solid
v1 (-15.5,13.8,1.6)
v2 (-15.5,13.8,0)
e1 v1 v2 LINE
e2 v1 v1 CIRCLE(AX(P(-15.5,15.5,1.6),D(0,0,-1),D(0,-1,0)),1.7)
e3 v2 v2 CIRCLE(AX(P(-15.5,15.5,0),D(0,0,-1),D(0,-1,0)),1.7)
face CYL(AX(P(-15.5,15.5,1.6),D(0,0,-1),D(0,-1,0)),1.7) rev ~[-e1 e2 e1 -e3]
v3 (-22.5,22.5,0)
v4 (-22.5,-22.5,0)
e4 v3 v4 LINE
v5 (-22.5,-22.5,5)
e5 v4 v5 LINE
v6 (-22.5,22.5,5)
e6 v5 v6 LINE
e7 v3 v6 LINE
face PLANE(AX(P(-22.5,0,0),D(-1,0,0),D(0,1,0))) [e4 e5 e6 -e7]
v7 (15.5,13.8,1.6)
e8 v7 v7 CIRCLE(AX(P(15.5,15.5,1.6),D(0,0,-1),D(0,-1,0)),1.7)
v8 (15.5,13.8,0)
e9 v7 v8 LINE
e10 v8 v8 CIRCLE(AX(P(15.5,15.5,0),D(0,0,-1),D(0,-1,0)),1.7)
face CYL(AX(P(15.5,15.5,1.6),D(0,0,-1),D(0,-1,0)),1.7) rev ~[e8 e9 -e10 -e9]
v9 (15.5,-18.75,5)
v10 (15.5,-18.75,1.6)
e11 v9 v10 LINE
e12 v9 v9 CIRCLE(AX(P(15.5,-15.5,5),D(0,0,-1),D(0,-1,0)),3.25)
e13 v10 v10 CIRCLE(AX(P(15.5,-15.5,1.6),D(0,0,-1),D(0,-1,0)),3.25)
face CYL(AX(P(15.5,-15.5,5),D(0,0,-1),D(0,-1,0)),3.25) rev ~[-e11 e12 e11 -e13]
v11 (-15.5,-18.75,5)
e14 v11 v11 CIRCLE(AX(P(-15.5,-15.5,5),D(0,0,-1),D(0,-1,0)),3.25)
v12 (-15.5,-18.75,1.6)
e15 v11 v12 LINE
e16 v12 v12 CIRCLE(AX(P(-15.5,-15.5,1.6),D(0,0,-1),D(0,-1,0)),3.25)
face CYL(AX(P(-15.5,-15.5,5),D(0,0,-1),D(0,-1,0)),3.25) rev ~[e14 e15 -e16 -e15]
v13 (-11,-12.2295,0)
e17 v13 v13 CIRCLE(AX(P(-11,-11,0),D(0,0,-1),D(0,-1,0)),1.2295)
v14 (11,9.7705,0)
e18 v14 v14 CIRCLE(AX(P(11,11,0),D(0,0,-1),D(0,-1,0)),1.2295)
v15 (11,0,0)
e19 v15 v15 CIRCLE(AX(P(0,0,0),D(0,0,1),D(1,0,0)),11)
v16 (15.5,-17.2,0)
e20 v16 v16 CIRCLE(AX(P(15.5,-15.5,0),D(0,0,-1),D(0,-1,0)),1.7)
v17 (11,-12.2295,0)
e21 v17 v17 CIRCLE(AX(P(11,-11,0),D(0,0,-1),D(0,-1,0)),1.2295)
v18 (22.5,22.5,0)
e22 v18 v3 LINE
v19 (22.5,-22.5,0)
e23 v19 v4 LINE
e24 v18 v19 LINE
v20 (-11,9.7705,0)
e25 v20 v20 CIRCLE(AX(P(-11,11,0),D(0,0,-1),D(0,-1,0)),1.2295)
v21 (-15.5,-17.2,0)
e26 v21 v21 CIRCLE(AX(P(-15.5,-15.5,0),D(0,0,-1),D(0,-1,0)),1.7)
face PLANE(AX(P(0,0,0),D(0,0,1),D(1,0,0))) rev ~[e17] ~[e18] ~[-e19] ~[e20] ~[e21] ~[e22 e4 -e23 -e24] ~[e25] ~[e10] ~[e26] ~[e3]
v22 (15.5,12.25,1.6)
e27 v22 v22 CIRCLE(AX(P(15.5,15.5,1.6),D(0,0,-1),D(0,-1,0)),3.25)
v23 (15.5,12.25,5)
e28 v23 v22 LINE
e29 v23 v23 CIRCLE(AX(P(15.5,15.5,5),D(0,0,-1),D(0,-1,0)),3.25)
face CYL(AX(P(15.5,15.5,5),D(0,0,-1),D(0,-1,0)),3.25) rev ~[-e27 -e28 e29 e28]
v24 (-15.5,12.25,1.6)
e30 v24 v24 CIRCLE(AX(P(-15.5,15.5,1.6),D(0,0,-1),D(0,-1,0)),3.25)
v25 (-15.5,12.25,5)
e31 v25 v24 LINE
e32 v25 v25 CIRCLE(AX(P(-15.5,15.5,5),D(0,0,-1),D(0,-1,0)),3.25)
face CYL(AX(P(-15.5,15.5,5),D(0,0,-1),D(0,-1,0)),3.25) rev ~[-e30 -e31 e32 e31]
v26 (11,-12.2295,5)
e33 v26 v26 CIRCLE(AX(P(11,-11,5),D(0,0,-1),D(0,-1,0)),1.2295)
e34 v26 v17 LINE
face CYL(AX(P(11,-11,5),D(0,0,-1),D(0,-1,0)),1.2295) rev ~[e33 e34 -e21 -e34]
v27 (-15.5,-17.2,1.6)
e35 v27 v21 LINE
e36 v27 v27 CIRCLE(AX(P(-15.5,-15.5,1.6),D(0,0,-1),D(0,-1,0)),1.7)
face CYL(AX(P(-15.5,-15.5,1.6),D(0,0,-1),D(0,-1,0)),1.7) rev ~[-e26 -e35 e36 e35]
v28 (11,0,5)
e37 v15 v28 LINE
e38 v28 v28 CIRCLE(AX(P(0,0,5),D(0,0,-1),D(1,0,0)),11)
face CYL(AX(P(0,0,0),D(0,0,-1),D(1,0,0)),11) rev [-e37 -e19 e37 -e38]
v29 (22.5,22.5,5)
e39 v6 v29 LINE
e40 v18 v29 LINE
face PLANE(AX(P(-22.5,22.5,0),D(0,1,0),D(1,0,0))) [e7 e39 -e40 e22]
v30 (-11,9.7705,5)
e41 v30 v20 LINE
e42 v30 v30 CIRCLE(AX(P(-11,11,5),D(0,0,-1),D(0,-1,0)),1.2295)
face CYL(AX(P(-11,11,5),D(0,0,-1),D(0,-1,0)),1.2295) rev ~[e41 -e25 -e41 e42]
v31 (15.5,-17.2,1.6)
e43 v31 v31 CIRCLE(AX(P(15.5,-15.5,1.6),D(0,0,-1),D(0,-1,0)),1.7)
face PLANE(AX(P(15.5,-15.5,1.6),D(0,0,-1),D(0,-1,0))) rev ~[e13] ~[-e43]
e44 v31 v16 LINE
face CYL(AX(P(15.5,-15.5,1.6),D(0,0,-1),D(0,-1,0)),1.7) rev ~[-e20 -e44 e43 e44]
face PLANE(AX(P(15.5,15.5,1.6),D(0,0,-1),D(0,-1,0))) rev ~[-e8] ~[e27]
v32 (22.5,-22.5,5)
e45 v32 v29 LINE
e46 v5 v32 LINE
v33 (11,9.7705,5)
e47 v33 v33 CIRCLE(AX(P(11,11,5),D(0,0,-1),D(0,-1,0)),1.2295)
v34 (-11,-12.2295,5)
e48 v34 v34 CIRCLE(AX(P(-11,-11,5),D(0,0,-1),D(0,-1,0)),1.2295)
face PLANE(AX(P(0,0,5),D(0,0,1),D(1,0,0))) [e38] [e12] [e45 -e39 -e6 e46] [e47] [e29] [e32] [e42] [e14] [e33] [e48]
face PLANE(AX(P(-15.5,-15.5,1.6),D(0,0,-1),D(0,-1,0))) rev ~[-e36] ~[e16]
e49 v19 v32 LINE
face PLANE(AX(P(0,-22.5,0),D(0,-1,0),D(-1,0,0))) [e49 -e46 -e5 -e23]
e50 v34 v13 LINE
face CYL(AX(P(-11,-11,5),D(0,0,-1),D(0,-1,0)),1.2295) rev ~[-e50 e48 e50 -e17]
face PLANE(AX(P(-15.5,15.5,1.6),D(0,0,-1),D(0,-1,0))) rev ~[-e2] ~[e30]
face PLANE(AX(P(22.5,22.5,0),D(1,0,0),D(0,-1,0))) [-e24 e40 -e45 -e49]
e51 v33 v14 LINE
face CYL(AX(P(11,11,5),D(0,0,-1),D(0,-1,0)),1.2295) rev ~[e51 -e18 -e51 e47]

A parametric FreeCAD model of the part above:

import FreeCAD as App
import Part
import Sketcher
from FreeCAD import Vector
Q = App.Units.Quantity

doc = App.newDocument("Part")
body = doc.addObject("PartDesign::Body", "Body")

sketch1 = body.newObject("Sketcher::SketchObject", "Sketch")
sketch1.AttachmentSupport = (doc.getObject("XY_Plane"), [""])
sketch1.MapMode = "FlatFace"
sketch1.addGeometry(Part.LineSegment(Vector(-22, 22, 0), Vector(-22, -22, 0)), False)
sketch1.addGeometry(Part.LineSegment(Vector(-22, -22, 0), Vector(22, -22, 0)), False)
sketch1.addGeometry(Part.LineSegment(Vector(22, -22, 0), Vector(22, 22, 0)), False)
sketch1.addGeometry(Part.LineSegment(Vector(22, 22, 0), Vector(-22, 22, 0)), False)
sketch1.addGeometry(Part.Circle(Vector(0, 0, 0), Vector(0, 0, 1), 11), False)
sketch1.addConstraint(Sketcher.Constraint("Coincident", 0, 2, 1, 1))
sketch1.addConstraint(Sketcher.Constraint("Coincident", 1, 2, 2, 1))
sketch1.addConstraint(Sketcher.Constraint("Coincident", 2, 2, 3, 1))
sketch1.addConstraint(Sketcher.Constraint("Coincident", 3, 2, 0, 1))
sketch1.addConstraint(Sketcher.Constraint("Vertical", 0))
sketch1.addConstraint(Sketcher.Constraint("Horizontal", 1))
sketch1.addConstraint(Sketcher.Constraint("Vertical", 2))
sketch1.addConstraint(Sketcher.Constraint("Horizontal", 3))
sketch1.addConstraint(Sketcher.Constraint("Coincident", 4, 3, -1, 1))
sketch1.addConstraint(Sketcher.Constraint("Symmetric", 0, 2, 2, 2, -1, 1))
sketch1.addConstraint(Sketcher.Constraint("Equal", 3, 0))
sketch1.addConstraint(Sketcher.Constraint("Diameter", 4, Q("22 mm")))
sketch1.addConstraint(Sketcher.Constraint("DistanceX", 1, 1, 1, 2, Q("45 mm")))
pad1 = body.newObject("PartDesign::Pad", "Pad")
pad1.Profile = sketch1
pad1.Length = 5

sketch2 = body.newObject("Sketcher::SketchObject", "Sketch001")
sketch2.AttachmentSupport = (doc.getObject("XY_Plane"), [""])
sketch2.MapMode = "FlatFace"
sketch2.AttachmentOffset = App.Placement(Vector(0, 0, 5), App.Rotation())
sketch2.addGeometry(Part.Circle(Vector(-11, 11, 0), Vector(0, 0, 1), 1.2), False)
sketch2.addGeometry(Part.Circle(Vector(11, 11, 0), Vector(0, 0, 1), 1.2), False)
sketch2.addGeometry(Part.Circle(Vector(11, -11, 0), Vector(0, 0, 1), 1.2), False)
sketch2.addGeometry(Part.Circle(Vector(-11, -11, 0), Vector(0, 0, 1), 1.2), False)
sketch2.addConstraint(Sketcher.Constraint("Equal", 0, 1))
sketch2.addConstraint(Sketcher.Constraint("Equal", 1, 2))
sketch2.addConstraint(Sketcher.Constraint("Equal", 2, 3))
sketch2.addConstraint(Sketcher.Constraint("Symmetric", 0, 3, 2, 3, -1, 1))
sketch2.addConstraint(Sketcher.Constraint("Symmetric", 1, 3, 3, 3, -1, 1))
sketch2.addConstraint(Sketcher.Constraint("Symmetric", 0, 3, 1, 3, -2))
sketch2.addConstraint(Sketcher.Constraint("Diameter", 0, Q("2.459 mm")))
sketch2.addConstraint(Sketcher.Constraint("DistanceX", 0, 3, -1, 1, Q("11 mm")))
sketch2.addConstraint(Sketcher.Constraint("DistanceY", -1, 1, 0, 3, Q("11 mm")))
doc.recompute()
hole = body.newObject("PartDesign::Hole", "Hole")
hole.Profile = sketch2
hole.ThreadType = "None"
hole.Diameter = 2.459
hole.DepthType = "ThroughAll"

sketch3 = body.newObject("Sketcher::SketchObject", "Sketch002")
sketch3.AttachmentSupport = (doc.getObject("XY_Plane"), [""])
sketch3.MapMode = "FlatFace"
sketch3.AttachmentOffset = App.Placement(Vector(0, 0, 5), App.Rotation())
sketch3.addGeometry(Part.Circle(Vector(15.5, -15.5, 0), Vector(0, 0, 1), 1.7), False)
sketch3.addGeometry(Part.Circle(Vector(-15.5, 15.5, 0), Vector(0, 0, 1), 1.7), False)
sketch3.addGeometry(Part.Circle(Vector(15.5, 15.5, 0), Vector(0, 0, 1), 1.7), False)
sketch3.addGeometry(Part.Circle(Vector(-15.5, -15.5, 0), Vector(0, 0, 1), 1.7), False)
sketch3.addConstraint(Sketcher.Constraint("Equal", 0, 1))
sketch3.addConstraint(Sketcher.Constraint("Equal", 1, 2))
sketch3.addConstraint(Sketcher.Constraint("Equal", 2, 3))
sketch3.addConstraint(Sketcher.Constraint("Symmetric", 0, 3, 1, 3, -1, 1))
sketch3.addConstraint(Sketcher.Constraint("Symmetric", 2, 3, 3, 3, -1, 1))
sketch3.addConstraint(Sketcher.Constraint("Symmetric", 1, 3, 2, 3, -2))
sketch3.addConstraint(Sketcher.Constraint("Diameter", 0, Q("3.4 mm")))
sketch3.addConstraint(Sketcher.Constraint("DistanceX", 1, 3, 0, 3, Q("31 mm")))
sketch3.addConstraint(Sketcher.Constraint("DistanceY", 0, 3, 1, 3, Q("31 mm")))
doc.recompute()
hole2 = body.newObject("PartDesign::Hole", "Hole001")
hole2.Profile = sketch3
hole2.ThreadType = "None"
hole2.Diameter = 3.4
hole2.DepthType = "ThroughAll"
hole2.HoleCutType = "Counterbore"
hole2.HoleCutDiameter = 6.5
hole2.HoleCutDepth = 3.4

doc.recompute()
